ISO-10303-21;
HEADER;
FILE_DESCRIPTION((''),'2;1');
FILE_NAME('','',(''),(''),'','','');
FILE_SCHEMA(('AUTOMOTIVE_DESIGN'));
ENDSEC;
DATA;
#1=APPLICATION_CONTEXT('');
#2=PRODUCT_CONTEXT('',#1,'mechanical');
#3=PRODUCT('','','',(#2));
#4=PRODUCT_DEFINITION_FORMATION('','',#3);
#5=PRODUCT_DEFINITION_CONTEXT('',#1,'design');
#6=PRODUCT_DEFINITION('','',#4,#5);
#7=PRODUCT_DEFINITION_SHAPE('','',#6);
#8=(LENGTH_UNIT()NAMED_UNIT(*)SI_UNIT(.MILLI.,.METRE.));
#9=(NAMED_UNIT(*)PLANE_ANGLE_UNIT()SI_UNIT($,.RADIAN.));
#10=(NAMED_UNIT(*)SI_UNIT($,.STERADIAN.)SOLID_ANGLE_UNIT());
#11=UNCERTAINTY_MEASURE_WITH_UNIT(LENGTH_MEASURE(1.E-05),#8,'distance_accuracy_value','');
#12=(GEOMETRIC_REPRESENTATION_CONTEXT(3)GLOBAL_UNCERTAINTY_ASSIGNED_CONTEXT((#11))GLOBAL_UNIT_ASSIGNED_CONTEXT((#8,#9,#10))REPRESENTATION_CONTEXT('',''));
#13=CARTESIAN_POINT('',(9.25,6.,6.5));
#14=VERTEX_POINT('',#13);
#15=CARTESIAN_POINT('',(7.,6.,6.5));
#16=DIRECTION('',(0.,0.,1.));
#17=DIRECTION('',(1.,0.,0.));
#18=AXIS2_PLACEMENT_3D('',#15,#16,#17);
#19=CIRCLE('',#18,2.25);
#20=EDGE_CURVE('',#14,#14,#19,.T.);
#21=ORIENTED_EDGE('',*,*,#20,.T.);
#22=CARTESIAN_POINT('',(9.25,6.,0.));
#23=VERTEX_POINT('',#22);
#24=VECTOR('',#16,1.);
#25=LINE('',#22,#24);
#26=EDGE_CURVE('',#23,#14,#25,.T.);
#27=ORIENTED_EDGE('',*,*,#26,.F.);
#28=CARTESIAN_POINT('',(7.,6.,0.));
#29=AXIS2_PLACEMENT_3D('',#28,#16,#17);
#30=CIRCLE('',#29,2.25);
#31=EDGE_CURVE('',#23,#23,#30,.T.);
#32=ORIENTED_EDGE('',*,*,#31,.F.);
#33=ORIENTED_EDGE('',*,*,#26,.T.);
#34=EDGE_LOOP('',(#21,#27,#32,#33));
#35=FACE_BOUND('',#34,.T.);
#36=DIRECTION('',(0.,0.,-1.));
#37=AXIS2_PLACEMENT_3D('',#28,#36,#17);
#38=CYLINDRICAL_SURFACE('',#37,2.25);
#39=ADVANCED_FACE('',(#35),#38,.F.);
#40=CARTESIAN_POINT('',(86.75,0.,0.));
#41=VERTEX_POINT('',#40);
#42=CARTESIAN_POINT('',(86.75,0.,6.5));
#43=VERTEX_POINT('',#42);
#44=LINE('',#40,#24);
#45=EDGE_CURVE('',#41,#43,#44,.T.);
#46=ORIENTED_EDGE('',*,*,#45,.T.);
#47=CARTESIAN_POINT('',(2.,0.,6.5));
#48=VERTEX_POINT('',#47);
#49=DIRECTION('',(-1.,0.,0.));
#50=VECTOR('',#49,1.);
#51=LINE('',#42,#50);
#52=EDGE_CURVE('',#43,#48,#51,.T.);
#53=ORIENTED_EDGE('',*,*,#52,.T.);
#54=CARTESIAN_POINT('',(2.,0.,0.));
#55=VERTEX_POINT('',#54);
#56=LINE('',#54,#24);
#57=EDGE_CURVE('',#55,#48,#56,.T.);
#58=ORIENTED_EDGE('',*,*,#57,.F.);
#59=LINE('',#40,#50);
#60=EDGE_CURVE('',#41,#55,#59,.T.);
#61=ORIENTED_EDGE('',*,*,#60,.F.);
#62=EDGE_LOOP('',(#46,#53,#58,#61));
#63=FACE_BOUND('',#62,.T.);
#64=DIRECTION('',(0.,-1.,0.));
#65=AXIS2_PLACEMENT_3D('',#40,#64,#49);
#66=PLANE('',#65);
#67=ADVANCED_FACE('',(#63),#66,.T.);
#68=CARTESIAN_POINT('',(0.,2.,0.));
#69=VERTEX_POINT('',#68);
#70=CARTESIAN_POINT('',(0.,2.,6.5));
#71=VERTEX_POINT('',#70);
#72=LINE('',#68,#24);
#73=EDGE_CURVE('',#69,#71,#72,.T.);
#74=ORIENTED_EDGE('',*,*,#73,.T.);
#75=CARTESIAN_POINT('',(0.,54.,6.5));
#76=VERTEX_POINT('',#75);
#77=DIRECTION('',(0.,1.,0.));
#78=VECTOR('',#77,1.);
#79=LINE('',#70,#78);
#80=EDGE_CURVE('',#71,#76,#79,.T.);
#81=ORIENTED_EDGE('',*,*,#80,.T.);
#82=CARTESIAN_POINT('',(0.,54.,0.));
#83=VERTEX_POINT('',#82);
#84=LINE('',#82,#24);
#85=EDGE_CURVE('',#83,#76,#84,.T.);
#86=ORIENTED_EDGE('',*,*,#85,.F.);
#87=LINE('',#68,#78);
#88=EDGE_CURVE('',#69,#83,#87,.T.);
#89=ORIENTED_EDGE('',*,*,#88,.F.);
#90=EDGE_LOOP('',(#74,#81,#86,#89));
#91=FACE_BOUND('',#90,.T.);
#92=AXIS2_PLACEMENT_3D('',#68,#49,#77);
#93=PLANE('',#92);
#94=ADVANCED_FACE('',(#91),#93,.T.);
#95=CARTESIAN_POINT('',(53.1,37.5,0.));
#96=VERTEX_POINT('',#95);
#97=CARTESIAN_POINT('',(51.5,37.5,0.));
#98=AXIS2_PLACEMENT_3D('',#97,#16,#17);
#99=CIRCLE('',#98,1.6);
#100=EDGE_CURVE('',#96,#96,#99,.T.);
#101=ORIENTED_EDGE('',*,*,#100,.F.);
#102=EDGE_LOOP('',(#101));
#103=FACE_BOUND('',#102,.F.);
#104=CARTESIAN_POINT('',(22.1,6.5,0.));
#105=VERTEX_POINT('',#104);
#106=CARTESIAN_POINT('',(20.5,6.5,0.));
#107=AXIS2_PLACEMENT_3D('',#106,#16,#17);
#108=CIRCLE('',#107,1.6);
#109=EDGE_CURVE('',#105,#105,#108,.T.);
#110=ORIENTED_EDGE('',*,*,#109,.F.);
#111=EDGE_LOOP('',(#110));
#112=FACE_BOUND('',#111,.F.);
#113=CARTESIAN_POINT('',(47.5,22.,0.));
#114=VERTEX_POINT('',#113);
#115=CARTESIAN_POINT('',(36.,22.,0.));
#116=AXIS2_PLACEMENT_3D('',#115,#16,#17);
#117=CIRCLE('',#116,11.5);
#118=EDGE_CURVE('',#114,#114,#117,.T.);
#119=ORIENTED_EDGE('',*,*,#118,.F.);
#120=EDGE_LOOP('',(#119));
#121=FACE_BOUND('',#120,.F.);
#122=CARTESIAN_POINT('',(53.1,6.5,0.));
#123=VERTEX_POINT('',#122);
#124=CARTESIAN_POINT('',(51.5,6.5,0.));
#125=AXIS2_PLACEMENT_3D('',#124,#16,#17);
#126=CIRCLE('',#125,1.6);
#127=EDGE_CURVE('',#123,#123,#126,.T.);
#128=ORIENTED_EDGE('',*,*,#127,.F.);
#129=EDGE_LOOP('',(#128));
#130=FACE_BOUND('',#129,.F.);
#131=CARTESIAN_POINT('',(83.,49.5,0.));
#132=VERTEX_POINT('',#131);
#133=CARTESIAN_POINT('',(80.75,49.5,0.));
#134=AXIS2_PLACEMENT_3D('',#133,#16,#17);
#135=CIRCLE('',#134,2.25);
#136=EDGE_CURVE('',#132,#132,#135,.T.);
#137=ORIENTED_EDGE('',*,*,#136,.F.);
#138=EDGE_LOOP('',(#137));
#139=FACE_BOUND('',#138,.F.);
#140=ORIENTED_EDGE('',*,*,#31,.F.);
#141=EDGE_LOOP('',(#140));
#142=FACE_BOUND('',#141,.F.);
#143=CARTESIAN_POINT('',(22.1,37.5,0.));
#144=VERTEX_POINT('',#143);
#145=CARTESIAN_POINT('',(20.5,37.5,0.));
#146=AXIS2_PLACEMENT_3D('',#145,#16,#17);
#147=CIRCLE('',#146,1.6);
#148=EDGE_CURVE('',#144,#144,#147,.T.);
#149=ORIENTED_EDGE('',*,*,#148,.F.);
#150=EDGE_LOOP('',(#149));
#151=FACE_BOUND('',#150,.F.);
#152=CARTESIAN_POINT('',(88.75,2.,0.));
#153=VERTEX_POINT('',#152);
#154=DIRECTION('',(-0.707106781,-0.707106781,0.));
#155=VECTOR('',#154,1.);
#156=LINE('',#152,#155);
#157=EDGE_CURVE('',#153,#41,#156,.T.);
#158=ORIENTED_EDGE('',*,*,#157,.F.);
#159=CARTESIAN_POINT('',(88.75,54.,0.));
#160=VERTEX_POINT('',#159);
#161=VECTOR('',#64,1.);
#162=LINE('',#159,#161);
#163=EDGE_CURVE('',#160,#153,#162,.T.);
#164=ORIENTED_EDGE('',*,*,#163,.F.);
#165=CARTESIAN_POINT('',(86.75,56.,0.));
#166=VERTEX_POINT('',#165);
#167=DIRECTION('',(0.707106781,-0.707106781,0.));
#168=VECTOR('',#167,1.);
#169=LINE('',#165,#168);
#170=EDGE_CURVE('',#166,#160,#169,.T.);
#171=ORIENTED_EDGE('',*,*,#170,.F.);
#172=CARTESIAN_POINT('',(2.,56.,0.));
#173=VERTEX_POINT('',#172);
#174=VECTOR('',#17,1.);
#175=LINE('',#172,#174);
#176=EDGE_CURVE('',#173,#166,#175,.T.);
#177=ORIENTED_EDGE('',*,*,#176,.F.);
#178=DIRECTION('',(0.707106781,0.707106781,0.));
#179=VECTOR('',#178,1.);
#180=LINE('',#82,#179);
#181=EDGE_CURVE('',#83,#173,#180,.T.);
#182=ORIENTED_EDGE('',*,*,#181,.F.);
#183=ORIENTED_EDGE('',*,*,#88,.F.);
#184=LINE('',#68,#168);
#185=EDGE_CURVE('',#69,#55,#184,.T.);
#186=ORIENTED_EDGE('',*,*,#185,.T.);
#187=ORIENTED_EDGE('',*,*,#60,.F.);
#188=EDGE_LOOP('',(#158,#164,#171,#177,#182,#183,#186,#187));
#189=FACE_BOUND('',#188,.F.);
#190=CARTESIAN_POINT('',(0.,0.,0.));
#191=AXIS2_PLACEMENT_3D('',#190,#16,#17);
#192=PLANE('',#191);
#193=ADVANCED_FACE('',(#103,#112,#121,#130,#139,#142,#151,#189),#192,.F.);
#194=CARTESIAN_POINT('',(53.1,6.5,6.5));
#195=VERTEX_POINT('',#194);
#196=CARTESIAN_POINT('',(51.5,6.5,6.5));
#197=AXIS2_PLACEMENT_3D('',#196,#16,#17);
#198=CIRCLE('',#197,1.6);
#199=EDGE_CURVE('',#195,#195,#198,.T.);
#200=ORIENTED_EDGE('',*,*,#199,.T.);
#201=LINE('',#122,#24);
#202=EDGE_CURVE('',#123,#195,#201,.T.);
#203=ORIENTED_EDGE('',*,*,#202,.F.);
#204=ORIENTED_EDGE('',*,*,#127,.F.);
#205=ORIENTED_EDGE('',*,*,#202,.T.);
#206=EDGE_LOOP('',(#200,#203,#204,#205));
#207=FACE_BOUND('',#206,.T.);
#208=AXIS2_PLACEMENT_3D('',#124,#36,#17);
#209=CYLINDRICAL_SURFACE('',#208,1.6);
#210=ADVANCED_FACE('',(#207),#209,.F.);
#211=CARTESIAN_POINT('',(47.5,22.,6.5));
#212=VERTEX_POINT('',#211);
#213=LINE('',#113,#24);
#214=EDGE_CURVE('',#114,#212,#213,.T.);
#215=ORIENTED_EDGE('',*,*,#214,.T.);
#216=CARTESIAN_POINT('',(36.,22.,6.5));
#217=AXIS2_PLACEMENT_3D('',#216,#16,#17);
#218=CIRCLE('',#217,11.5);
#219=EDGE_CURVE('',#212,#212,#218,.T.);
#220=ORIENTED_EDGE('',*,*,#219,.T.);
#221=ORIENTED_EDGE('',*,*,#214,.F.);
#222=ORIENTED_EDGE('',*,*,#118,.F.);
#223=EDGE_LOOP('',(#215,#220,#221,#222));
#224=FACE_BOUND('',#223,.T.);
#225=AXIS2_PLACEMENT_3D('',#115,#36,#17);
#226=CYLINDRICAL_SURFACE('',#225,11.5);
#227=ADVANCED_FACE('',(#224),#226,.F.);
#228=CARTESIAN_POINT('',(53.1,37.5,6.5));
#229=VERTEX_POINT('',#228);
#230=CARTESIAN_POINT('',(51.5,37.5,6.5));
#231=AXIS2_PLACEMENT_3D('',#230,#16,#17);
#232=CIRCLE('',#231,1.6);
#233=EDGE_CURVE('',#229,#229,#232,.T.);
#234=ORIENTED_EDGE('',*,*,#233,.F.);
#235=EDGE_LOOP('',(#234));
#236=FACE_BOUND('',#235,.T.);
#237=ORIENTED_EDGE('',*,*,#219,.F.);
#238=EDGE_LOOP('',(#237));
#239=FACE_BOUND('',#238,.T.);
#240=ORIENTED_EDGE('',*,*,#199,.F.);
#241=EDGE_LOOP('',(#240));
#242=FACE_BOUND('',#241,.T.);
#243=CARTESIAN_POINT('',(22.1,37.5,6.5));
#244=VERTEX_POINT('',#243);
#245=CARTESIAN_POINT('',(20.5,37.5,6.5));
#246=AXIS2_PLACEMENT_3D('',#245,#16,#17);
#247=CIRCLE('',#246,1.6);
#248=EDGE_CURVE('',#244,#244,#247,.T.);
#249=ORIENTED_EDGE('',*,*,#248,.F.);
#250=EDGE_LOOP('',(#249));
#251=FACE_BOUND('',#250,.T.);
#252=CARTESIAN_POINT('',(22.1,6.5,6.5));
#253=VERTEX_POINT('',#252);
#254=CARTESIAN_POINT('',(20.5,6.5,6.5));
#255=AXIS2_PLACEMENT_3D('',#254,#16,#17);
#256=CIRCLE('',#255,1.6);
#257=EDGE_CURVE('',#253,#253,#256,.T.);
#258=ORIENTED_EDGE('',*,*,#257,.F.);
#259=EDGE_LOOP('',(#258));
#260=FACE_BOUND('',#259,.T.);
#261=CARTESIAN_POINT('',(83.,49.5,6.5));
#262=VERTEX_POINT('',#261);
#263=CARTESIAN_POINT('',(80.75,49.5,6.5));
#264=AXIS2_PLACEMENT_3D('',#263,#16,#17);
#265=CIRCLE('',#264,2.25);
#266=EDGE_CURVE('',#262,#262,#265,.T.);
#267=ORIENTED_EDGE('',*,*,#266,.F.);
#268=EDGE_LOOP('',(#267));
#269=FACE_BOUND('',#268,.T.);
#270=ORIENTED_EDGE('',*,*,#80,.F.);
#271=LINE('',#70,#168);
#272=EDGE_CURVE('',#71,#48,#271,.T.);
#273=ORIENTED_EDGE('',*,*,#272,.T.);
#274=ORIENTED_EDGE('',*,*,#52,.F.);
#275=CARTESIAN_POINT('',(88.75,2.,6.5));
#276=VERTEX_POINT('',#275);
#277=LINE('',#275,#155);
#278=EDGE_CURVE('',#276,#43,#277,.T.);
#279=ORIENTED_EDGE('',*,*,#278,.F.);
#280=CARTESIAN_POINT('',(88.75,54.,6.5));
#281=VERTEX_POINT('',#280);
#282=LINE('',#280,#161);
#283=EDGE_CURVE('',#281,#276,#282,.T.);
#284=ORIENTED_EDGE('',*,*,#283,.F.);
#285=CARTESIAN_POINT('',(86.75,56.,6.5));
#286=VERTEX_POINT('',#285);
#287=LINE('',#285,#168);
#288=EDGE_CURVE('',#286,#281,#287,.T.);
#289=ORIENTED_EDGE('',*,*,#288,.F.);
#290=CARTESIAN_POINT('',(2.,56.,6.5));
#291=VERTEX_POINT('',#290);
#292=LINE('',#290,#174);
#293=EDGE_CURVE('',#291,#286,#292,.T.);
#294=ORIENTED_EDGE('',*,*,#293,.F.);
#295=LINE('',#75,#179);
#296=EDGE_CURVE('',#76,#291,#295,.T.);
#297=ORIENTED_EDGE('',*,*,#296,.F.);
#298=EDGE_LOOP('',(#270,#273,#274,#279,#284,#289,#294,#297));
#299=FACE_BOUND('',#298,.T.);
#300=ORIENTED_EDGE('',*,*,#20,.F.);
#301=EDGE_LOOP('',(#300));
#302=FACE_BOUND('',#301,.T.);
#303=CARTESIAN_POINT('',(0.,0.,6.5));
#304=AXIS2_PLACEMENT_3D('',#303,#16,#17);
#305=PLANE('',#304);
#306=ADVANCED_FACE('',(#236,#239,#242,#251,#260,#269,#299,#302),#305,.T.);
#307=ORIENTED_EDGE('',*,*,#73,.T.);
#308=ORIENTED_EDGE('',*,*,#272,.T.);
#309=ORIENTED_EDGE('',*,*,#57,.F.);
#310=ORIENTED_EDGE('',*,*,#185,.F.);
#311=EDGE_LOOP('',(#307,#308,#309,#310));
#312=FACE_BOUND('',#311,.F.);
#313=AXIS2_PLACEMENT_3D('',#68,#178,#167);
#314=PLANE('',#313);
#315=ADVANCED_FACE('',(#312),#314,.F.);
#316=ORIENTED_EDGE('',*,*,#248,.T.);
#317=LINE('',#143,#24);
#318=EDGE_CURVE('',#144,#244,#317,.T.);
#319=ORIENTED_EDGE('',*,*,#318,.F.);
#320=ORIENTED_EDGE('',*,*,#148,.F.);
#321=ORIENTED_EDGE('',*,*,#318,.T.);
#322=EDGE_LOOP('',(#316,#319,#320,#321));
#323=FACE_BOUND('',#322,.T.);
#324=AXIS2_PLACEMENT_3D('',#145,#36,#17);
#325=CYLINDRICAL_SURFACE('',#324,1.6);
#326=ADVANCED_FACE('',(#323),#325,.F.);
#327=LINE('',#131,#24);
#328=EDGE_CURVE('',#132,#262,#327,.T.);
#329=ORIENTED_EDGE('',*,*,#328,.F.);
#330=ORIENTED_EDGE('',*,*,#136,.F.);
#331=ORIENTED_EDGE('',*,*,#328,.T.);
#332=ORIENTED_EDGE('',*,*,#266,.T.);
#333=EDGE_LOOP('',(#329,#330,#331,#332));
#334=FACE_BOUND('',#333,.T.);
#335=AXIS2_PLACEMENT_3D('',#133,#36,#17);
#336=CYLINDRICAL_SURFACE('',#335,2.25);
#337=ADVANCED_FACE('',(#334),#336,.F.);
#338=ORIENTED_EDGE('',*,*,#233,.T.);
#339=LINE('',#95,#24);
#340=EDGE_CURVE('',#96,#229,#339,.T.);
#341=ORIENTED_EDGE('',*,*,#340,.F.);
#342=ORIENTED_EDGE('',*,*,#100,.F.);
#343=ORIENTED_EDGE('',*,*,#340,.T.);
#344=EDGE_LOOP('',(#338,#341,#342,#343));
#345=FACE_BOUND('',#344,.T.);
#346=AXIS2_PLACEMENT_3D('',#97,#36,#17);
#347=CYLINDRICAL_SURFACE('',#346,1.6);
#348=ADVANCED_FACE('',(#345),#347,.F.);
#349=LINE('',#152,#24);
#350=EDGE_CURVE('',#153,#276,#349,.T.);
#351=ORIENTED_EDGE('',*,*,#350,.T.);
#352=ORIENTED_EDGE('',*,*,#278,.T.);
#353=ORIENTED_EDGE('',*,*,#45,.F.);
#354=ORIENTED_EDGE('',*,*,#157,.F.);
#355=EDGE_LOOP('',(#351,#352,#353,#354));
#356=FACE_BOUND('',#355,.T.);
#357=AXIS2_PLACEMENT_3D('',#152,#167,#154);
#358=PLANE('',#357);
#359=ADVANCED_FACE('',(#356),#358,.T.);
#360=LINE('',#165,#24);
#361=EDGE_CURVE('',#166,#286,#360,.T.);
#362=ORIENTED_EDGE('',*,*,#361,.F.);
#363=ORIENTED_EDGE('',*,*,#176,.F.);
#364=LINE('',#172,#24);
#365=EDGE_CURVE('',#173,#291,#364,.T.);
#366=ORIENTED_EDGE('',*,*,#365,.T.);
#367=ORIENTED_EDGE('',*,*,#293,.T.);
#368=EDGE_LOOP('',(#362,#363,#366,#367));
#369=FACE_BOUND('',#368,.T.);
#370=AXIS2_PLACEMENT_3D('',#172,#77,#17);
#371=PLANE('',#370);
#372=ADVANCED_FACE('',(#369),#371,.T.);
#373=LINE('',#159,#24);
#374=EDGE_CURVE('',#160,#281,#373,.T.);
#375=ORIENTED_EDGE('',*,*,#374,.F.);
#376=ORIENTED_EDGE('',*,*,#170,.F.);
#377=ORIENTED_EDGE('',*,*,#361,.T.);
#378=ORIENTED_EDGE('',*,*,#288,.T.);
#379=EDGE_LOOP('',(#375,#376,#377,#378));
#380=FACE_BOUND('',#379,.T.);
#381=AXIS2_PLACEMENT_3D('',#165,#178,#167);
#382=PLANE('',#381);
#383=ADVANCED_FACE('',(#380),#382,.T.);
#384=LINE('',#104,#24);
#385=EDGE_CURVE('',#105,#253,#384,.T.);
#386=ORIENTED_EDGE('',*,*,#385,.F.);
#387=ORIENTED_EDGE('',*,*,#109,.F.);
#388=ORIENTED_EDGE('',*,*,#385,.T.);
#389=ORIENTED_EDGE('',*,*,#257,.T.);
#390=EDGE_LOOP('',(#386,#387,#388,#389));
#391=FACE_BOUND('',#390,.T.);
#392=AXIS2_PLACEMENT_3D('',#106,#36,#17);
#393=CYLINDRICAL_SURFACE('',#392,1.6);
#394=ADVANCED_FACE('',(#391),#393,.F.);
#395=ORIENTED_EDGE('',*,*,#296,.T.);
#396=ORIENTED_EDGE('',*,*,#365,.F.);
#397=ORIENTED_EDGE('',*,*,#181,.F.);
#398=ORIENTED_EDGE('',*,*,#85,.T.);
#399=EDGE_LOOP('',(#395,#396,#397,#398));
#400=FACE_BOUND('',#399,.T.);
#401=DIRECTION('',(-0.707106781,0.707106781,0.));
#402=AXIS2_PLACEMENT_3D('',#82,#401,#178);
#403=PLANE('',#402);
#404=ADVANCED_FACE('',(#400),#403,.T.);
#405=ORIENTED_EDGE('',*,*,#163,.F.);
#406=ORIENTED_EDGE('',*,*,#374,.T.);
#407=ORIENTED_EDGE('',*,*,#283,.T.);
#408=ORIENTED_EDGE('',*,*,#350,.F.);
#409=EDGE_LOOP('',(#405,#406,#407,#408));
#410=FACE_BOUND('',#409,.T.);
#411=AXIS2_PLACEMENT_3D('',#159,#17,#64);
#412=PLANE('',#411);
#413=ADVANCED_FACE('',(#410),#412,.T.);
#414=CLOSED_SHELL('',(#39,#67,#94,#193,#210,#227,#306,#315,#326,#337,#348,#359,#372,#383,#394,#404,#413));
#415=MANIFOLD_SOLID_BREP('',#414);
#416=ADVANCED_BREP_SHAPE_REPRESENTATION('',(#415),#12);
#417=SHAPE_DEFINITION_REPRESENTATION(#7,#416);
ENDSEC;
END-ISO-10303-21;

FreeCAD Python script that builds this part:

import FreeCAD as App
import Part
import Sketcher

V = App.Vector
Q = App.Units.Quantity


def add_polygon(sketch, points):
    """Adds a closed chain of lines whose ends are joined by coincident constraints."""
    first, n = sketch.GeometryCount, len(points)
    for a, b in zip(points, points[1:] + points[:1]):
        sketch.addGeometry(Part.LineSegment(App.Vector(*a, 0), App.Vector(*b, 0)), False)
    for i in range(n):
        sketch.addConstraint(Sketcher.Constraint("Coincident", first + i, 2, first + (i + 1) % n, 1))

doc = App.newDocument("Part")
body = doc.addObject("PartDesign::Body", "Body")

sketch1 = doc.addObject("Sketcher::SketchObject", "Sketch")
body.addObject(sketch1)
sketch1.AttachmentSupport = (doc.XY_Plane, [""])
sketch1.MapMode = "FlatFace"
add_polygon(sketch1, [(86.8, 56), (2, 56), (0, 54), (0, 2), (2, 0), (86.8, 0), (88.8, 2), (88.8, 54)])
sketch1.addGeometry(Part.Circle(V(7, 6, 0), V(0, 0, 1), 2.2), False)
sketch1.addGeometry(Part.Circle(V(20.5, 6.5, 0), V(0, 0, 1), 1.6), False)
sketch1.addGeometry(Part.Circle(V(36, 22, 0), V(0, 0, 1), 11.5), False)
sketch1.addGeometry(Part.Circle(V(51.5, 6.5, 0), V(0, 0, 1), 1.6), False)
sketch1.addGeometry(Part.Circle(V(20.5, 37.5, 0), V(0, 0, 1), 1.6), False)
sketch1.addGeometry(Part.Circle(V(51.5, 37.5, 0), V(0, 0, 1), 1.6), False)
sketch1.addGeometry(Part.Circle(V(80.8, 49.5, 0), V(0, 0, 1), 2.2), False)
sketch1.addConstraint(Sketcher.Constraint("Horizontal", 0))
sketch1.addConstraint(Sketcher.Constraint("Vertical", 2))
sketch1.addConstraint(Sketcher.Constraint("Horizontal", 4))
sketch1.addConstraint(Sketcher.Constraint("Vertical", 6))
sketch1.addConstraint(Sketcher.Constraint("Equal", 9, 11))
sketch1.addConstraint(Sketcher.Constraint("Equal", 11, 12))
sketch1.addConstraint(Sketcher.Constraint("Equal", 12, 13))
sketch1.addConstraint(Sketcher.Constraint("Equal", 8, 14))
sketch1.addConstraint(Sketcher.Constraint("PointOnObject", 1, 2, -2))
sketch1.addConstraint(Sketcher.Constraint("PointOnObject", 3, 2, -1))
sketch1.addConstraint(Sketcher.Constraint("Perpendicular", 1, 3))
sketch1.addConstraint(Sketcher.Constraint("Perpendicular", 3, 5))
sketch1.addConstraint(Sketcher.Constraint("Perpendicular", 5, 7))
sketch1.addConstraint(Sketcher.Constraint("Horizontal", 9, 3, 11, 3))
sketch1.addConstraint(Sketcher.Constraint("Horizontal", 12, 3, 13, 3))
sketch1.addConstraint(Sketcher.Constraint("Horizontal", 2, 2, 5, 2))
sketch1.addConstraint(Sketcher.Constraint("Horizontal", 1, 2, 6, 2))
sketch1.addConstraint(Sketcher.Constraint("Vertical", 9, 3, 12, 3))
sketch1.addConstraint(Sketcher.Constraint("Vertical", 11, 3, 13, 3))
sketch1.addConstraint(Sketcher.Constraint("Vertical", 0, 2, 3, 2))
sketch1.addConstraint(Sketcher.Constraint("Vertical", 4, 2, 7, 2))
sketch1.addConstraint(Sketcher.Constraint("Diameter", 10, Q("23 mm")))
sketch1.addConstraint(Sketcher.Constraint("Diameter", 8, Q("4.5 mm")))
sketch1.addConstraint(Sketcher.Constraint("Diameter", 9, Q("3.2 mm")))
sketch1.addConstraint(Sketcher.Constraint("DistanceY", -1, 1, 8, 3, Q("6 mm")))
sketch1.addConstraint(Sketcher.Constraint("DistanceX", -1, 1, 10, 3, Q("36 mm")))
sketch1.addConstraint(Sketcher.Constraint("DistanceY", -1, 1, 10, 3, Q("22 mm")))
sketch1.addConstraint(Sketcher.Constraint("DistanceX", -1, 1, 0, 2, Q("2 mm")))
sketch1.addConstraint(Sketcher.Constraint("DistanceX", 9, 3, 11, 3, Q("31 mm")))
sketch1.addConstraint(Sketcher.Constraint("DistanceY", 9, 3, 12, 3, Q("31 mm")))
sketch1.addConstraint(Sketcher.Constraint("DistanceY", 13, 3, 14, 3, Q("12 mm")))
sketch1.addConstraint(Sketcher.Constraint("DistanceY", 10, 3, 0, 2, Q("34 mm")))
sketch1.addConstraint(Sketcher.Constraint("DistanceX", 14, 3, 4, 2, Q("6 mm")))
sketch1.addConstraint(Sketcher.Constraint("DistanceY", 2, 2, 9, 3, Q("4.5 mm")))
sketch1.addConstraint(Sketcher.Constraint("DistanceX", 13, 3, 14, 3, Q("29.25 mm")))
sketch1.addConstraint(Sketcher.Constraint("DistanceX", -1, 1, 8, 3, Q("7 mm")))
sketch1.addConstraint(Sketcher.Constraint("DistanceX", 0, 2, 0, 1, Q("84.75 mm")))
pad1 = doc.addObject("PartDesign::Pad", "Pad")
body.addObject(pad1)
pad1.Profile = sketch1
pad1.Length = 6.5

doc.recompute()
